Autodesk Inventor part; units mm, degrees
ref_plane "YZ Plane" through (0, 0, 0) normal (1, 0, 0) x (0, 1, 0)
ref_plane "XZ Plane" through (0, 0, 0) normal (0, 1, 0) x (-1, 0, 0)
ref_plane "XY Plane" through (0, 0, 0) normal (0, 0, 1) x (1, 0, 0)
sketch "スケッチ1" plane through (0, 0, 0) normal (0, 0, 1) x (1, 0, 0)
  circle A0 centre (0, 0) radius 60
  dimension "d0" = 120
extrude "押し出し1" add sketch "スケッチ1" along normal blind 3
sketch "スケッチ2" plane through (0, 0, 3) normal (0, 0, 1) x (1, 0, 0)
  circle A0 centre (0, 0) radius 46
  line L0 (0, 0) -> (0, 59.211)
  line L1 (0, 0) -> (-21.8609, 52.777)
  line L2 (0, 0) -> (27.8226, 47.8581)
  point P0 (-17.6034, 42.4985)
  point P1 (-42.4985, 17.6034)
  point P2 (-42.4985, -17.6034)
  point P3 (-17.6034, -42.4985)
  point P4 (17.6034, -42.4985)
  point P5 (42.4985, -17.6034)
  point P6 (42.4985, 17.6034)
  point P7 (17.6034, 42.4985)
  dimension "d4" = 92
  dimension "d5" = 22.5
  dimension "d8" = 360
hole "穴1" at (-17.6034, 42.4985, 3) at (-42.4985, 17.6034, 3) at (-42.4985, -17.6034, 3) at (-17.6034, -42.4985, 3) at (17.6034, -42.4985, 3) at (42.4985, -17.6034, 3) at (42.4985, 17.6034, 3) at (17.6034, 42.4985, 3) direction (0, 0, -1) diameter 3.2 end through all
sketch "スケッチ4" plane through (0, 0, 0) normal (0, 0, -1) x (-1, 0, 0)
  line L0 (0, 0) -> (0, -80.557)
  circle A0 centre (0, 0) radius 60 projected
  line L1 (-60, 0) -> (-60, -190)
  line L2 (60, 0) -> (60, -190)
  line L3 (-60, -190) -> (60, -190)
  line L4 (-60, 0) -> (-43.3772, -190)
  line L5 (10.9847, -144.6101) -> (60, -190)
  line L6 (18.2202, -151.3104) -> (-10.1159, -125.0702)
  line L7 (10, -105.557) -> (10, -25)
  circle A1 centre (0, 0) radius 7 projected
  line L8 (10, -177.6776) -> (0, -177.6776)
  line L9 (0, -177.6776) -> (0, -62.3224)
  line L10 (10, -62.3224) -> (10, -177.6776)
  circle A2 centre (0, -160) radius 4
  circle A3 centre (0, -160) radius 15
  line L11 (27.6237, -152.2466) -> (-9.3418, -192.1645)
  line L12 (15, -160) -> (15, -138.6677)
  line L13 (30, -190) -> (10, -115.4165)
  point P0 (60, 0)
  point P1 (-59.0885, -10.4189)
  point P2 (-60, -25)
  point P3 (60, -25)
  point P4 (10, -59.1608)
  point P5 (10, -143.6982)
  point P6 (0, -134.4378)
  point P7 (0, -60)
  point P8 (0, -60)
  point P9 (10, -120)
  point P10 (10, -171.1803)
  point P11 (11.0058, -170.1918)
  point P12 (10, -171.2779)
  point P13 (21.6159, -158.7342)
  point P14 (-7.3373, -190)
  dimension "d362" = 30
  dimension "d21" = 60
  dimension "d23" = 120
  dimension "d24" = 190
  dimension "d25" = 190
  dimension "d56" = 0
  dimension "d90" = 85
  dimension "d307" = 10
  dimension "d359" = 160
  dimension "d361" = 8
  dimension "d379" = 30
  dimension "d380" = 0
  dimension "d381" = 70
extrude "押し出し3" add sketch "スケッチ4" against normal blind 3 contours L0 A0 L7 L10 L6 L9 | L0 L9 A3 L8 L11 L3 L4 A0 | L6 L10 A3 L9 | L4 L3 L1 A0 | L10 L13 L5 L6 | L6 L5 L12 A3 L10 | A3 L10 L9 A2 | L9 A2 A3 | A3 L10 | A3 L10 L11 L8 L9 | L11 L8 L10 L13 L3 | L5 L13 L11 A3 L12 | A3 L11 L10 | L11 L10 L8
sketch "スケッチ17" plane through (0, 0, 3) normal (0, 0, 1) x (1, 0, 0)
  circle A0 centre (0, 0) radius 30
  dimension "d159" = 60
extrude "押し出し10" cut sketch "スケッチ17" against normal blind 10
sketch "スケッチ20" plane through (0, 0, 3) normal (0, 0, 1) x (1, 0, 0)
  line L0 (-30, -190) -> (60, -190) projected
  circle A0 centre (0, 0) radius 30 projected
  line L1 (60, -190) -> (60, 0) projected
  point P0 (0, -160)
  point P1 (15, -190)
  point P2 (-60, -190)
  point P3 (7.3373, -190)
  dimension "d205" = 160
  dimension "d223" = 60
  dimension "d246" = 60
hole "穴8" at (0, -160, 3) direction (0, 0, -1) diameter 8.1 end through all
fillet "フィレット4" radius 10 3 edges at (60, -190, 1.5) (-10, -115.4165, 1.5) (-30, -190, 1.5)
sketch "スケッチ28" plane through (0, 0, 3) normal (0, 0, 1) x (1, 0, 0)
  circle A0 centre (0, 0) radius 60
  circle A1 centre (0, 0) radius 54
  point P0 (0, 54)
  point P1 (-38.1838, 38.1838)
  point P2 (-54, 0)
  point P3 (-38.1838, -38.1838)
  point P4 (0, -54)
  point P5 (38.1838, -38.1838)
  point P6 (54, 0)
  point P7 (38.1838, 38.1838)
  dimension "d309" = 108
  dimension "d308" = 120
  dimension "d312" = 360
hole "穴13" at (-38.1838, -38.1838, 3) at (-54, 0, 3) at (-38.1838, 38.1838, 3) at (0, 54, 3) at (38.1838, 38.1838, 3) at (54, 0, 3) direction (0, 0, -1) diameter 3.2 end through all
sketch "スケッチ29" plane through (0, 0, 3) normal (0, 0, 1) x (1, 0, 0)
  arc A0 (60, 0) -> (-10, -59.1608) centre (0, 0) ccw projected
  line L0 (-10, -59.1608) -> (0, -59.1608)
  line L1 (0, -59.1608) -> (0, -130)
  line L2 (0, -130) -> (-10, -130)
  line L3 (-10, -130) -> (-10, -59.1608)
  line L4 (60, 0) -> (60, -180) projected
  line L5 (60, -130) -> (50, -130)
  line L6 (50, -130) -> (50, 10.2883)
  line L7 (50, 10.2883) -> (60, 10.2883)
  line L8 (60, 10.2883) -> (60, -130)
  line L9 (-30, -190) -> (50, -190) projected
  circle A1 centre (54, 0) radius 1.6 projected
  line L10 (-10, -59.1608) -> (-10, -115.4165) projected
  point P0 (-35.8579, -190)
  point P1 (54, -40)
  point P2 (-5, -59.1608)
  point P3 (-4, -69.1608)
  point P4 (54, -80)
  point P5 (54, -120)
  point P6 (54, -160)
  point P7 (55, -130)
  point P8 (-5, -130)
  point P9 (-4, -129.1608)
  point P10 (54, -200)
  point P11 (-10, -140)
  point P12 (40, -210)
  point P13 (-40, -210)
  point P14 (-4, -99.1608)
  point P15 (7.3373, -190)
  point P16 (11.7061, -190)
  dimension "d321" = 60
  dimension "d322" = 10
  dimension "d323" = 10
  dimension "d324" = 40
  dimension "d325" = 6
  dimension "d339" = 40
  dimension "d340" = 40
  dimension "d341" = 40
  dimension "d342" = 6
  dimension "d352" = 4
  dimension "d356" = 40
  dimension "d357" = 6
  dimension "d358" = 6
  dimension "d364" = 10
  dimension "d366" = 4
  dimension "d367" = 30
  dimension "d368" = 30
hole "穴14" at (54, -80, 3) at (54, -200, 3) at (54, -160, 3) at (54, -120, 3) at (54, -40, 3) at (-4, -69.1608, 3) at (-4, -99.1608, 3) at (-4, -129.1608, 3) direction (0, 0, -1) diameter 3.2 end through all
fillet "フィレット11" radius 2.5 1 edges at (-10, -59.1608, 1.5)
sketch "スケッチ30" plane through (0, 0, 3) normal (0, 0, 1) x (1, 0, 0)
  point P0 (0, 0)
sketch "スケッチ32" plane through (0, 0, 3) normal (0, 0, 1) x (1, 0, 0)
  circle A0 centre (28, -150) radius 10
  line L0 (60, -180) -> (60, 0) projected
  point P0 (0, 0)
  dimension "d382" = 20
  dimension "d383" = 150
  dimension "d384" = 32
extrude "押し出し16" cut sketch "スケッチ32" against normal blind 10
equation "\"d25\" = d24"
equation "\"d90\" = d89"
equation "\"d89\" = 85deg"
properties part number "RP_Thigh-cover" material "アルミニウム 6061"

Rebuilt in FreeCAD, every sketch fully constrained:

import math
import FreeCAD as App
import Part
import Sketcher
from FreeCAD import Vector
Q = App.Units.Quantity


def edges_at(feature, points):
    """Names of the edges that pass closest to the given points."""
    edges = feature.Shape.Edges
    near = lambda p: min(range(len(edges)), key=lambda i: edges[i].distToShape(Part.Vertex(*p))[0])
    return sorted({f"Edge{near(p) + 1}" for p in points})

doc = App.newDocument("Part")
body = doc.addObject("PartDesign::Body", "Body")

# Sketch on XY plane
sketch1 = body.newObject("Sketcher::SketchObject", "Sketch")
sketch1.AttachmentSupport = (doc.getObject("XY_Plane"), [""])
sketch1.MapMode = "FlatFace"
sketch1.addGeometry(Part.Circle(Vector(0, 0, 0), Vector(0, 0, 1), 60), False)
sketch1.addConstraint([
    Sketcher.Constraint("Coincident", 0, 3, -1, 1),
    Sketcher.Constraint("Diameter", 0, Q("120 mm")),
])
pad1 = body.newObject("PartDesign::Pad", "Pad")
pad1.Profile = sketch1
pad1.Length = 3

# Sketch on XY plane
sketch2 = body.newObject("Sketcher::SketchObject", "Sketch001")
sketch2.AttachmentSupport = (doc.getObject("XY_Plane"), [""])
sketch2.MapMode = "FlatFace"
sketch2.AttachmentOffset = App.Placement(Vector(0, 0, 3), App.Rotation())
sketch2.addGeometry([
    Part.Circle(Vector(-17.6, 42.5, 0), Vector(0, 0, 1), 1.6),  # 0
    Part.Circle(Vector(-42.5, 17.6, 0), Vector(0, 0, 1), 1.6),  # 1
    Part.Circle(Vector(-42.5, -17.6, 0), Vector(0, 0, 1), 1.6),  # 2
    Part.Circle(Vector(-17.6, -42.5, 0), Vector(0, 0, 1), 1.6),  # 3
    Part.Circle(Vector(17.6, -42.5, 0), Vector(0, 0, 1), 1.6),  # 4
    Part.Circle(Vector(42.5, -17.6, 0), Vector(0, 0, 1), 1.6),  # 5
    Part.Circle(Vector(42.5, 17.6, 0), Vector(0, 0, 1), 1.6),  # 6
    Part.Circle(Vector(17.6, 42.5, 0), Vector(0, 0, 1), 1.6),  # 7
], False)
sketch2.addConstraint([
    Sketcher.Constraint("Equal", 0, 1),
    Sketcher.Constraint("Equal", 1, 2),
    Sketcher.Constraint("Equal", 2, 3),
    Sketcher.Constraint("Equal", 3, 4),
    Sketcher.Constraint("Equal", 4, 5),
    Sketcher.Constraint("Equal", 5, 6),
    Sketcher.Constraint("Equal", 6, 7),
    Sketcher.Constraint("Symmetric", 0, 3, 4, 3, -1, 1),
    Sketcher.Constraint("Symmetric", 1, 3, 5, 3, -1, 1),
    Sketcher.Constraint("Symmetric", 2, 3, 6, 3, -1, 1),
    Sketcher.Constraint("Symmetric", 3, 3, 7, 3, -1, 1),
    Sketcher.Constraint("Symmetric", 3, 3, 4, 3, -2),
    Sketcher.Constraint("Symmetric", 2, 3, 5, 3, -2),
    Sketcher.Constraint("Diameter", 0, Q("3.2 mm")),
    Sketcher.Constraint("DistanceX", 1, 3, 0, 3, Q("24.895 mm")),
    Sketcher.Constraint("DistanceY", 1, 3, 0, 3, Q("24.895 mm")),
    Sketcher.Constraint("DistanceY", 2, 3, 0, 3, Q("60.102 mm")),
    Sketcher.Constraint("DistanceX", 2, 3, 4, 3, Q("60.102 mm")),
])
doc.recompute()
hole = body.newObject("PartDesign::Hole", "Hole")
hole.Profile = sketch2
hole.ThreadType = "None"
hole.Diameter = 3.2
hole.DepthType = "ThroughAll"

# Sketch on XY plane
sketch3 = body.newObject("Sketcher::SketchObject", "Sketch002")
sketch3.AttachmentSupport = (doc.getObject("XY_Plane"), [""])
sketch3.MapMode = "FlatFace"
sketch3.addGeometry([
    Part.ArcOfCircle(Part.Circle(Vector(0, 0, 0), Vector(0, 0, 1), 60), math.radians(-100), math.radians(0)),  # 0
    Part.LineSegment(Vector(60, 0, 0), Vector(60, -190, 0)),  # 1
    Part.LineSegment(Vector(60, -190, 0), Vector(-30, -190, 0)),  # 2
    Part.LineSegment(Vector(-30, -190, 0), Vector(-10, -115.4, 0)),  # 3
    Part.LineSegment(Vector(-10, -115.4, 0), Vector(-10, -59.2, 0)),  # 4
    Part.Circle(Vector(0, -160, 0), Vector(0, 0, 1), 4),  # 5
], False)
sketch3.addConstraint([
    Sketcher.Constraint("Tangent", 0, 2, 1, 1),
    Sketcher.Constraint("Coincident", 1, 2, 2, 1),
    Sketcher.Constraint("Coincident", 2, 2, 3, 1),
    Sketcher.Constraint("Coincident", 3, 2, 4, 1),
    Sketcher.Constraint("Coincident", 4, 2, 0, 1),
    Sketcher.Constraint("Vertical", 1),
    Sketcher.Constraint("Horizontal", 2),
    Sketcher.Constraint("Vertical", 4),
    Sketcher.Constraint("Coincident", 0, 3, -1, 1),
    Sketcher.Constraint("PointOnObject", 5, 3, -2),
    Sketcher.Constraint("Diameter", 5, Q("8 mm")),
    Sketcher.Constraint("Radius", 0, Q("60 mm")),
    Sketcher.Constraint("DistanceY", 1, 2, 1, 1, Q("190 mm")),
    Sketcher.Constraint("DistanceY", 5, 3, -1, 1, Q("160 mm")),
    Sketcher.Constraint("DistanceX", 2, 2, -1, 1, Q("30 mm")),
    Sketcher.Constraint("DistanceX", 3, 2, -1, 1, Q("10 mm")),
    Sketcher.Constraint("Angle", 3, Q("74.989 deg")),
])
pad2 = body.newObject("PartDesign::Pad", "Pad001")
pad2.Profile = sketch3
pad2.Length = 3

# Sketch on XY plane
sketch4 = body.newObject("Sketcher::SketchObject", "Sketch003")
sketch4.AttachmentSupport = (doc.getObject("XY_Plane"), [""])
sketch4.MapMode = "FlatFace"
sketch4.AttachmentOffset = App.Placement(Vector(0, 0, 3), App.Rotation())
sketch4.addGeometry(Part.Circle(Vector(0, 0, 0), Vector(0, 0, 1), 30), False)
sketch4.addConstraint([
    Sketcher.Constraint("Coincident", 0, 3, -1, 1),
    Sketcher.Constraint("Diameter", 0, Q("60 mm")),
])
pocket1 = body.newObject("PartDesign::Pocket", "Pocket")
pocket1.Profile = sketch4
pocket1.Length = 10

# Sketch on XY plane
sketch5 = body.newObject("Sketcher::SketchObject", "Sketch004")
sketch5.AttachmentSupport = (doc.getObject("XY_Plane"), [""])
sketch5.MapMode = "FlatFace"
sketch5.AttachmentOffset = App.Placement(Vector(0, 0, 3), App.Rotation())
sketch5.addGeometry(Part.Circle(Vector(0, -160, 0), Vector(0, 0, 1), 4), False)
sketch5.addConstraint([
    Sketcher.Constraint("PointOnObject", 0, 3, -2),
    Sketcher.Constraint("Diameter", 0, Q("8.1 mm")),
    Sketcher.Constraint("DistanceY", 0, 3, -1, 1, Q("160 mm")),
])
doc.recompute()
hole2 = body.newObject("PartDesign::Hole", "Hole001")
hole2.Profile = sketch5
hole2.ThreadType = "None"
hole2.Diameter = 8.1
hole2.DepthType = "ThroughAll"
doc.recompute()

fillet = body.newObject("PartDesign::Fillet", "Fillet")
fillet.Base = (hole2, edges_at(hole2, [(60, -190, 1.5), (-10, -115.416, 1.5), (-30, -190, 1.5)]))
fillet.Radius = 10

# Sketch on XY plane
sketch6 = body.newObject("Sketcher::SketchObject", "Sketch005")
sketch6.AttachmentSupport = (doc.getObject("XY_Plane"), [""])
sketch6.MapMode = "FlatFace"
sketch6.AttachmentOffset = App.Placement(Vector(0, 0, 3), App.Rotation())
sketch6.addGeometry([
    Part.Circle(Vector(-38.2, -38.2, 0), Vector(0, 0, 1), 1.6),  # 0
    Part.Circle(Vector(-54, 0, 0), Vector(0, 0, 1), 1.6),  # 1
    Part.Circle(Vector(-38.2, 38.2, 0), Vector(0, 0, 1), 1.6),  # 2
    Part.Circle(Vector(0, 54, 0), Vector(0, 0, 1), 1.6),  # 3
    Part.Circle(Vector(38.2, 38.2, 0), Vector(0, 0, 1), 1.6),  # 4
    Part.Circle(Vector(54, 0, 0), Vector(0, 0, 1), 1.6),  # 5
], False)
sketch6.addConstraint([
    Sketcher.Constraint("Equal", 0, 1),
    Sketcher.Constraint("Equal", 1, 2),
    Sketcher.Constraint("Equal", 2, 3),
    Sketcher.Constraint("Equal", 3, 4),
    Sketcher.Constraint("Equal", 4, 5),
    Sketcher.Constraint("Symmetric", 0, 3, 4, 3, -1, 1),
    Sketcher.Constraint("Symmetric", 1, 3, 5, 3, -1, 1),
    Sketcher.Constraint("Symmetric", 2, 3, 4, 3, -2),
    Sketcher.Constraint("PointOnObject", 1, 3, -1),
    Sketcher.Constraint("PointOnObject", 3, 3, -2),
    Sketcher.Constraint("Diameter", 0, Q("3.2 mm")),
    Sketcher.Constraint("DistanceX", 1, 3, -1, 1, Q("54 mm")),
    Sketcher.Constraint("DistanceY", -1, 1, 3, 3, Q("54 mm")),
    Sketcher.Constraint("DistanceX", 0, 3, -1, 1, Q("38.1838 mm")),
    Sketcher.Constraint("DistanceY", 0, 3, -1, 1, Q("38.1838 mm")),
])
doc.recompute()
hole3 = body.newObject("PartDesign::Hole", "Hole002")
hole3.Profile = sketch6
hole3.ThreadType = "None"
hole3.Diameter = 3.2
hole3.DepthType = "ThroughAll"

# Sketch on XY plane
sketch7 = body.newObject("Sketcher::SketchObject", "Sketch006")
sketch7.AttachmentSupport = (doc.getObject("XY_Plane"), [""])
sketch7.MapMode = "FlatFace"
sketch7.AttachmentOffset = App.Placement(Vector(0, 0, 3), App.Rotation())
sketch7.addGeometry([
    Part.Circle(Vector(54, -80, 0), Vector(0, 0, 1), 1.6),  # 0
    Part.Circle(Vector(54, -200, 0), Vector(0, 0, 1), 1.6),  # 1
    Part.Circle(Vector(54, -160, 0), Vector(0, 0, 1), 1.6),  # 2
    Part.Circle(Vector(54, -120, 0), Vector(0, 0, 1), 1.6),  # 3
    Part.Circle(Vector(54, -40, 0), Vector(0, 0, 1), 1.6),  # 4
    Part.Circle(Vector(-4, -69.2, 0), Vector(0, 0, 1), 1.6),  # 5
    Part.Circle(Vector(-4, -99.2, 0), Vector(0, 0, 1), 1.6),  # 6
    Part.Circle(Vector(-4, -129.2, 0), Vector(0, 0, 1), 1.6),  # 7
], False)
sketch7.addConstraint([
    Sketcher.Constraint("Equal", 0, 1),
    Sketcher.Constraint("Equal", 1, 2),
    Sketcher.Constraint("Equal", 2, 3),
    Sketcher.Constraint("Equal", 3, 4),
    Sketcher.Constraint("Equal", 4, 5),
    Sketcher.Constraint("Equal", 5, 6),
    Sketcher.Constraint("Equal", 6, 7),
    Sketcher.Constraint("Vertical", 0, 3, 1, 3),
    Sketcher.Constraint("Vertical", 1, 3, 2, 3),
    Sketcher.Constraint("Vertical", 2, 3, 3, 3),
    Sketcher.Constraint("Vertical", 3, 3, 4, 3),
    Sketcher.Constraint("Vertical", 5, 3, 6, 3),
    Sketcher.Constraint("Vertical", 6, 3, 7, 3),
    Sketcher.Constraint("Diameter", 0, Q("3.2 mm")),
    Sketcher.Constraint("DistanceX", -1, 1, 0, 3, Q("54 mm")),
    Sketcher.Constraint("DistanceY", 0, 3, -1, 1, Q("80 mm")),
    Sketcher.Constraint("DistanceY", 1, 3, -1, 1, Q("200 mm")),
    Sketcher.Constraint("DistanceY", 2, 3, -1, 1, Q("160 mm")),
    Sketcher.Constraint("DistanceY", 3, 3, -1, 1, Q("120 mm")),
    Sketcher.Constraint("DistanceY", 4, 3, -1, 1, Q("40 mm")),
    Sketcher.Constraint("DistanceX", 5, 3, -1, 1, Q("4 mm")),
    Sketcher.Constraint("DistanceY", 6, 3, 5, 3, Q("30 mm")),
    Sketcher.Constraint("DistanceY", 7, 3, 6, 3, Q("30 mm")),
    Sketcher.Constraint("DistanceY", 5, 3, -1, 1, Q("69.1608 mm")),
])
doc.recompute()
hole4 = body.newObject("PartDesign::Hole", "Hole003")
hole4.Profile = sketch7
hole4.ThreadType = "None"
hole4.Diameter = 3.2
hole4.DepthType = "ThroughAll"
doc.recompute()

fillet2 = body.newObject("PartDesign::Fillet", "Fillet001")
fillet2.Base = (hole4, edges_at(hole4, [(-10, -59.161, 1.5)]))
fillet2.Radius = 2.5

# Sketch on XY plane
sketch8 = body.newObject("Sketcher::SketchObject", "Sketch007")
sketch8.AttachmentSupport = (doc.getObject("XY_Plane"), [""])
sketch8.MapMode = "FlatFace"
sketch8.AttachmentOffset = App.Placement(Vector(0, 0, 3), App.Rotation())
sketch8.addGeometry(Part.Circle(Vector(28, -150, 0), Vector(0, 0, 1), 10), False)
sketch8.addConstraint([
    Sketcher.Constraint("Diameter", 0, Q("20 mm")),
    Sketcher.Constraint("DistanceY", 0, 3, -1, 1, Q("150 mm")),
    Sketcher.Constraint("DistanceX", -1, 1, 0, 3, Q("28 mm")),
])
pocket2 = body.newObject("PartDesign::Pocket", "Pocket001")
pocket2.Profile = sketch8
pocket2.Length = 10

doc.recompute()
